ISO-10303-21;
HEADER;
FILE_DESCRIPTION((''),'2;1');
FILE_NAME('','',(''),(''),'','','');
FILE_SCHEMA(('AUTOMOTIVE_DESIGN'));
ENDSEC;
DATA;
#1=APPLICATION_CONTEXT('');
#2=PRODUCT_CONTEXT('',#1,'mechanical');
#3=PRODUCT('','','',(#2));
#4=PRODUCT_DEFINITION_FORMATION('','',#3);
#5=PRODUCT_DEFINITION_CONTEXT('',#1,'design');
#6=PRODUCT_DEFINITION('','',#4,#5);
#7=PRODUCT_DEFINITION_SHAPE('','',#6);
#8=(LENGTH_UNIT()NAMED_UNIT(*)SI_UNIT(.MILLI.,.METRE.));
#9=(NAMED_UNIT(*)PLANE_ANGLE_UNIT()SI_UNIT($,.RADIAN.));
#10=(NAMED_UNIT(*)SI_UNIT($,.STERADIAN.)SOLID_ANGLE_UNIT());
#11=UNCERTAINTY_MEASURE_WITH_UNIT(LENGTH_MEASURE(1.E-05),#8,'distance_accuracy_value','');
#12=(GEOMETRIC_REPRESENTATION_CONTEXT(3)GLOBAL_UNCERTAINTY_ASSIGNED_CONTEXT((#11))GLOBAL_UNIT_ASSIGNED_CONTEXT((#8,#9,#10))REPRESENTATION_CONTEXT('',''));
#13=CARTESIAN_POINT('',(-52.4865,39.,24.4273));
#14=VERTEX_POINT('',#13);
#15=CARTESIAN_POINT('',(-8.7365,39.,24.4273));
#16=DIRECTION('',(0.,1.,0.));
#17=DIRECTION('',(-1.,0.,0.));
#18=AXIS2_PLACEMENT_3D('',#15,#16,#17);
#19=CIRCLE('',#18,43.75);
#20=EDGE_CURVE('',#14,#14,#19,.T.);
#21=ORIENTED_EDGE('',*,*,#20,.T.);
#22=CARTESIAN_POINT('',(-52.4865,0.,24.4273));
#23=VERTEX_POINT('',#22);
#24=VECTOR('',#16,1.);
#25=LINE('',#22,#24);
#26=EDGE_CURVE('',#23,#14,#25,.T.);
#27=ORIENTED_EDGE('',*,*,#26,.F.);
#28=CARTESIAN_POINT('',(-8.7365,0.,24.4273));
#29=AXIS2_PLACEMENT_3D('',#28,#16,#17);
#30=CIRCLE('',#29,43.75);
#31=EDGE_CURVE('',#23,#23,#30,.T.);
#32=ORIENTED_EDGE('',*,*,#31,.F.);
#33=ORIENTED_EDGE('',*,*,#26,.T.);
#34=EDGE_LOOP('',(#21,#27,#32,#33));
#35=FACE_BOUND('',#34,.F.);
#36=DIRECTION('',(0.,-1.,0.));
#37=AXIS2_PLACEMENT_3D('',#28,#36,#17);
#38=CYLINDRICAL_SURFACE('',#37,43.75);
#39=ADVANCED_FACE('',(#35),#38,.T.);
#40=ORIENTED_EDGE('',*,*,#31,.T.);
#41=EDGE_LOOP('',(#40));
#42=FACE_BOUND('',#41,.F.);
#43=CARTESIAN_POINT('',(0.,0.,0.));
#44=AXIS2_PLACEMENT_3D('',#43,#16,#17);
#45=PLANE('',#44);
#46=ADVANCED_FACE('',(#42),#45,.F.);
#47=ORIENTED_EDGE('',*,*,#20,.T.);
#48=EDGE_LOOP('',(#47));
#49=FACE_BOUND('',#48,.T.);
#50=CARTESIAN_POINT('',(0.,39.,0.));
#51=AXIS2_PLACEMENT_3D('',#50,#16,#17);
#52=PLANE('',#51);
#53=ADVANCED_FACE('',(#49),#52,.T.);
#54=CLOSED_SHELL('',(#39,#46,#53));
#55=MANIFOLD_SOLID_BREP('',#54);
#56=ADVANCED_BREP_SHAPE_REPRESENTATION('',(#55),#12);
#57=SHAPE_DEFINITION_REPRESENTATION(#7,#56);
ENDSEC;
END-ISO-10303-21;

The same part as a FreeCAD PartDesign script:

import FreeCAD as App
import Part
import Sketcher
from FreeCAD import Vector
Q = App.Units.Quantity

doc = App.newDocument("Part")
body = doc.addObject("PartDesign::Body", "Body")

# Sketch on XZ plane
sketch1 = doc.addObject("Sketcher::SketchObject", "Sketch")
body.addObject(sketch1)
sketch1.AttachmentSupport = (doc.XZ_Plane, [""])
sketch1.MapMode = "FlatFace"
sketch1.addGeometry(Part.Circle(Vector(-9, 24, 0), Vector(0, 0, 1), 44), False)
sketch1.addConstraint([
    Sketcher.Constraint("Diameter", 0, Q("87.5 mm")),
    Sketcher.Constraint("DistanceX", 0, 3, -1, 1, Q("8.7365 mm")),
    Sketcher.Constraint("DistanceY", -1, 1, 0, 3, Q("24.4273 mm")),
])
pad1 = doc.addObject("PartDesign::Pad", "Pad")
body.addObject(pad1)
pad1.Profile = sketch1
pad1.Length = 39
pad1.Reversed = True

doc.recompute()
